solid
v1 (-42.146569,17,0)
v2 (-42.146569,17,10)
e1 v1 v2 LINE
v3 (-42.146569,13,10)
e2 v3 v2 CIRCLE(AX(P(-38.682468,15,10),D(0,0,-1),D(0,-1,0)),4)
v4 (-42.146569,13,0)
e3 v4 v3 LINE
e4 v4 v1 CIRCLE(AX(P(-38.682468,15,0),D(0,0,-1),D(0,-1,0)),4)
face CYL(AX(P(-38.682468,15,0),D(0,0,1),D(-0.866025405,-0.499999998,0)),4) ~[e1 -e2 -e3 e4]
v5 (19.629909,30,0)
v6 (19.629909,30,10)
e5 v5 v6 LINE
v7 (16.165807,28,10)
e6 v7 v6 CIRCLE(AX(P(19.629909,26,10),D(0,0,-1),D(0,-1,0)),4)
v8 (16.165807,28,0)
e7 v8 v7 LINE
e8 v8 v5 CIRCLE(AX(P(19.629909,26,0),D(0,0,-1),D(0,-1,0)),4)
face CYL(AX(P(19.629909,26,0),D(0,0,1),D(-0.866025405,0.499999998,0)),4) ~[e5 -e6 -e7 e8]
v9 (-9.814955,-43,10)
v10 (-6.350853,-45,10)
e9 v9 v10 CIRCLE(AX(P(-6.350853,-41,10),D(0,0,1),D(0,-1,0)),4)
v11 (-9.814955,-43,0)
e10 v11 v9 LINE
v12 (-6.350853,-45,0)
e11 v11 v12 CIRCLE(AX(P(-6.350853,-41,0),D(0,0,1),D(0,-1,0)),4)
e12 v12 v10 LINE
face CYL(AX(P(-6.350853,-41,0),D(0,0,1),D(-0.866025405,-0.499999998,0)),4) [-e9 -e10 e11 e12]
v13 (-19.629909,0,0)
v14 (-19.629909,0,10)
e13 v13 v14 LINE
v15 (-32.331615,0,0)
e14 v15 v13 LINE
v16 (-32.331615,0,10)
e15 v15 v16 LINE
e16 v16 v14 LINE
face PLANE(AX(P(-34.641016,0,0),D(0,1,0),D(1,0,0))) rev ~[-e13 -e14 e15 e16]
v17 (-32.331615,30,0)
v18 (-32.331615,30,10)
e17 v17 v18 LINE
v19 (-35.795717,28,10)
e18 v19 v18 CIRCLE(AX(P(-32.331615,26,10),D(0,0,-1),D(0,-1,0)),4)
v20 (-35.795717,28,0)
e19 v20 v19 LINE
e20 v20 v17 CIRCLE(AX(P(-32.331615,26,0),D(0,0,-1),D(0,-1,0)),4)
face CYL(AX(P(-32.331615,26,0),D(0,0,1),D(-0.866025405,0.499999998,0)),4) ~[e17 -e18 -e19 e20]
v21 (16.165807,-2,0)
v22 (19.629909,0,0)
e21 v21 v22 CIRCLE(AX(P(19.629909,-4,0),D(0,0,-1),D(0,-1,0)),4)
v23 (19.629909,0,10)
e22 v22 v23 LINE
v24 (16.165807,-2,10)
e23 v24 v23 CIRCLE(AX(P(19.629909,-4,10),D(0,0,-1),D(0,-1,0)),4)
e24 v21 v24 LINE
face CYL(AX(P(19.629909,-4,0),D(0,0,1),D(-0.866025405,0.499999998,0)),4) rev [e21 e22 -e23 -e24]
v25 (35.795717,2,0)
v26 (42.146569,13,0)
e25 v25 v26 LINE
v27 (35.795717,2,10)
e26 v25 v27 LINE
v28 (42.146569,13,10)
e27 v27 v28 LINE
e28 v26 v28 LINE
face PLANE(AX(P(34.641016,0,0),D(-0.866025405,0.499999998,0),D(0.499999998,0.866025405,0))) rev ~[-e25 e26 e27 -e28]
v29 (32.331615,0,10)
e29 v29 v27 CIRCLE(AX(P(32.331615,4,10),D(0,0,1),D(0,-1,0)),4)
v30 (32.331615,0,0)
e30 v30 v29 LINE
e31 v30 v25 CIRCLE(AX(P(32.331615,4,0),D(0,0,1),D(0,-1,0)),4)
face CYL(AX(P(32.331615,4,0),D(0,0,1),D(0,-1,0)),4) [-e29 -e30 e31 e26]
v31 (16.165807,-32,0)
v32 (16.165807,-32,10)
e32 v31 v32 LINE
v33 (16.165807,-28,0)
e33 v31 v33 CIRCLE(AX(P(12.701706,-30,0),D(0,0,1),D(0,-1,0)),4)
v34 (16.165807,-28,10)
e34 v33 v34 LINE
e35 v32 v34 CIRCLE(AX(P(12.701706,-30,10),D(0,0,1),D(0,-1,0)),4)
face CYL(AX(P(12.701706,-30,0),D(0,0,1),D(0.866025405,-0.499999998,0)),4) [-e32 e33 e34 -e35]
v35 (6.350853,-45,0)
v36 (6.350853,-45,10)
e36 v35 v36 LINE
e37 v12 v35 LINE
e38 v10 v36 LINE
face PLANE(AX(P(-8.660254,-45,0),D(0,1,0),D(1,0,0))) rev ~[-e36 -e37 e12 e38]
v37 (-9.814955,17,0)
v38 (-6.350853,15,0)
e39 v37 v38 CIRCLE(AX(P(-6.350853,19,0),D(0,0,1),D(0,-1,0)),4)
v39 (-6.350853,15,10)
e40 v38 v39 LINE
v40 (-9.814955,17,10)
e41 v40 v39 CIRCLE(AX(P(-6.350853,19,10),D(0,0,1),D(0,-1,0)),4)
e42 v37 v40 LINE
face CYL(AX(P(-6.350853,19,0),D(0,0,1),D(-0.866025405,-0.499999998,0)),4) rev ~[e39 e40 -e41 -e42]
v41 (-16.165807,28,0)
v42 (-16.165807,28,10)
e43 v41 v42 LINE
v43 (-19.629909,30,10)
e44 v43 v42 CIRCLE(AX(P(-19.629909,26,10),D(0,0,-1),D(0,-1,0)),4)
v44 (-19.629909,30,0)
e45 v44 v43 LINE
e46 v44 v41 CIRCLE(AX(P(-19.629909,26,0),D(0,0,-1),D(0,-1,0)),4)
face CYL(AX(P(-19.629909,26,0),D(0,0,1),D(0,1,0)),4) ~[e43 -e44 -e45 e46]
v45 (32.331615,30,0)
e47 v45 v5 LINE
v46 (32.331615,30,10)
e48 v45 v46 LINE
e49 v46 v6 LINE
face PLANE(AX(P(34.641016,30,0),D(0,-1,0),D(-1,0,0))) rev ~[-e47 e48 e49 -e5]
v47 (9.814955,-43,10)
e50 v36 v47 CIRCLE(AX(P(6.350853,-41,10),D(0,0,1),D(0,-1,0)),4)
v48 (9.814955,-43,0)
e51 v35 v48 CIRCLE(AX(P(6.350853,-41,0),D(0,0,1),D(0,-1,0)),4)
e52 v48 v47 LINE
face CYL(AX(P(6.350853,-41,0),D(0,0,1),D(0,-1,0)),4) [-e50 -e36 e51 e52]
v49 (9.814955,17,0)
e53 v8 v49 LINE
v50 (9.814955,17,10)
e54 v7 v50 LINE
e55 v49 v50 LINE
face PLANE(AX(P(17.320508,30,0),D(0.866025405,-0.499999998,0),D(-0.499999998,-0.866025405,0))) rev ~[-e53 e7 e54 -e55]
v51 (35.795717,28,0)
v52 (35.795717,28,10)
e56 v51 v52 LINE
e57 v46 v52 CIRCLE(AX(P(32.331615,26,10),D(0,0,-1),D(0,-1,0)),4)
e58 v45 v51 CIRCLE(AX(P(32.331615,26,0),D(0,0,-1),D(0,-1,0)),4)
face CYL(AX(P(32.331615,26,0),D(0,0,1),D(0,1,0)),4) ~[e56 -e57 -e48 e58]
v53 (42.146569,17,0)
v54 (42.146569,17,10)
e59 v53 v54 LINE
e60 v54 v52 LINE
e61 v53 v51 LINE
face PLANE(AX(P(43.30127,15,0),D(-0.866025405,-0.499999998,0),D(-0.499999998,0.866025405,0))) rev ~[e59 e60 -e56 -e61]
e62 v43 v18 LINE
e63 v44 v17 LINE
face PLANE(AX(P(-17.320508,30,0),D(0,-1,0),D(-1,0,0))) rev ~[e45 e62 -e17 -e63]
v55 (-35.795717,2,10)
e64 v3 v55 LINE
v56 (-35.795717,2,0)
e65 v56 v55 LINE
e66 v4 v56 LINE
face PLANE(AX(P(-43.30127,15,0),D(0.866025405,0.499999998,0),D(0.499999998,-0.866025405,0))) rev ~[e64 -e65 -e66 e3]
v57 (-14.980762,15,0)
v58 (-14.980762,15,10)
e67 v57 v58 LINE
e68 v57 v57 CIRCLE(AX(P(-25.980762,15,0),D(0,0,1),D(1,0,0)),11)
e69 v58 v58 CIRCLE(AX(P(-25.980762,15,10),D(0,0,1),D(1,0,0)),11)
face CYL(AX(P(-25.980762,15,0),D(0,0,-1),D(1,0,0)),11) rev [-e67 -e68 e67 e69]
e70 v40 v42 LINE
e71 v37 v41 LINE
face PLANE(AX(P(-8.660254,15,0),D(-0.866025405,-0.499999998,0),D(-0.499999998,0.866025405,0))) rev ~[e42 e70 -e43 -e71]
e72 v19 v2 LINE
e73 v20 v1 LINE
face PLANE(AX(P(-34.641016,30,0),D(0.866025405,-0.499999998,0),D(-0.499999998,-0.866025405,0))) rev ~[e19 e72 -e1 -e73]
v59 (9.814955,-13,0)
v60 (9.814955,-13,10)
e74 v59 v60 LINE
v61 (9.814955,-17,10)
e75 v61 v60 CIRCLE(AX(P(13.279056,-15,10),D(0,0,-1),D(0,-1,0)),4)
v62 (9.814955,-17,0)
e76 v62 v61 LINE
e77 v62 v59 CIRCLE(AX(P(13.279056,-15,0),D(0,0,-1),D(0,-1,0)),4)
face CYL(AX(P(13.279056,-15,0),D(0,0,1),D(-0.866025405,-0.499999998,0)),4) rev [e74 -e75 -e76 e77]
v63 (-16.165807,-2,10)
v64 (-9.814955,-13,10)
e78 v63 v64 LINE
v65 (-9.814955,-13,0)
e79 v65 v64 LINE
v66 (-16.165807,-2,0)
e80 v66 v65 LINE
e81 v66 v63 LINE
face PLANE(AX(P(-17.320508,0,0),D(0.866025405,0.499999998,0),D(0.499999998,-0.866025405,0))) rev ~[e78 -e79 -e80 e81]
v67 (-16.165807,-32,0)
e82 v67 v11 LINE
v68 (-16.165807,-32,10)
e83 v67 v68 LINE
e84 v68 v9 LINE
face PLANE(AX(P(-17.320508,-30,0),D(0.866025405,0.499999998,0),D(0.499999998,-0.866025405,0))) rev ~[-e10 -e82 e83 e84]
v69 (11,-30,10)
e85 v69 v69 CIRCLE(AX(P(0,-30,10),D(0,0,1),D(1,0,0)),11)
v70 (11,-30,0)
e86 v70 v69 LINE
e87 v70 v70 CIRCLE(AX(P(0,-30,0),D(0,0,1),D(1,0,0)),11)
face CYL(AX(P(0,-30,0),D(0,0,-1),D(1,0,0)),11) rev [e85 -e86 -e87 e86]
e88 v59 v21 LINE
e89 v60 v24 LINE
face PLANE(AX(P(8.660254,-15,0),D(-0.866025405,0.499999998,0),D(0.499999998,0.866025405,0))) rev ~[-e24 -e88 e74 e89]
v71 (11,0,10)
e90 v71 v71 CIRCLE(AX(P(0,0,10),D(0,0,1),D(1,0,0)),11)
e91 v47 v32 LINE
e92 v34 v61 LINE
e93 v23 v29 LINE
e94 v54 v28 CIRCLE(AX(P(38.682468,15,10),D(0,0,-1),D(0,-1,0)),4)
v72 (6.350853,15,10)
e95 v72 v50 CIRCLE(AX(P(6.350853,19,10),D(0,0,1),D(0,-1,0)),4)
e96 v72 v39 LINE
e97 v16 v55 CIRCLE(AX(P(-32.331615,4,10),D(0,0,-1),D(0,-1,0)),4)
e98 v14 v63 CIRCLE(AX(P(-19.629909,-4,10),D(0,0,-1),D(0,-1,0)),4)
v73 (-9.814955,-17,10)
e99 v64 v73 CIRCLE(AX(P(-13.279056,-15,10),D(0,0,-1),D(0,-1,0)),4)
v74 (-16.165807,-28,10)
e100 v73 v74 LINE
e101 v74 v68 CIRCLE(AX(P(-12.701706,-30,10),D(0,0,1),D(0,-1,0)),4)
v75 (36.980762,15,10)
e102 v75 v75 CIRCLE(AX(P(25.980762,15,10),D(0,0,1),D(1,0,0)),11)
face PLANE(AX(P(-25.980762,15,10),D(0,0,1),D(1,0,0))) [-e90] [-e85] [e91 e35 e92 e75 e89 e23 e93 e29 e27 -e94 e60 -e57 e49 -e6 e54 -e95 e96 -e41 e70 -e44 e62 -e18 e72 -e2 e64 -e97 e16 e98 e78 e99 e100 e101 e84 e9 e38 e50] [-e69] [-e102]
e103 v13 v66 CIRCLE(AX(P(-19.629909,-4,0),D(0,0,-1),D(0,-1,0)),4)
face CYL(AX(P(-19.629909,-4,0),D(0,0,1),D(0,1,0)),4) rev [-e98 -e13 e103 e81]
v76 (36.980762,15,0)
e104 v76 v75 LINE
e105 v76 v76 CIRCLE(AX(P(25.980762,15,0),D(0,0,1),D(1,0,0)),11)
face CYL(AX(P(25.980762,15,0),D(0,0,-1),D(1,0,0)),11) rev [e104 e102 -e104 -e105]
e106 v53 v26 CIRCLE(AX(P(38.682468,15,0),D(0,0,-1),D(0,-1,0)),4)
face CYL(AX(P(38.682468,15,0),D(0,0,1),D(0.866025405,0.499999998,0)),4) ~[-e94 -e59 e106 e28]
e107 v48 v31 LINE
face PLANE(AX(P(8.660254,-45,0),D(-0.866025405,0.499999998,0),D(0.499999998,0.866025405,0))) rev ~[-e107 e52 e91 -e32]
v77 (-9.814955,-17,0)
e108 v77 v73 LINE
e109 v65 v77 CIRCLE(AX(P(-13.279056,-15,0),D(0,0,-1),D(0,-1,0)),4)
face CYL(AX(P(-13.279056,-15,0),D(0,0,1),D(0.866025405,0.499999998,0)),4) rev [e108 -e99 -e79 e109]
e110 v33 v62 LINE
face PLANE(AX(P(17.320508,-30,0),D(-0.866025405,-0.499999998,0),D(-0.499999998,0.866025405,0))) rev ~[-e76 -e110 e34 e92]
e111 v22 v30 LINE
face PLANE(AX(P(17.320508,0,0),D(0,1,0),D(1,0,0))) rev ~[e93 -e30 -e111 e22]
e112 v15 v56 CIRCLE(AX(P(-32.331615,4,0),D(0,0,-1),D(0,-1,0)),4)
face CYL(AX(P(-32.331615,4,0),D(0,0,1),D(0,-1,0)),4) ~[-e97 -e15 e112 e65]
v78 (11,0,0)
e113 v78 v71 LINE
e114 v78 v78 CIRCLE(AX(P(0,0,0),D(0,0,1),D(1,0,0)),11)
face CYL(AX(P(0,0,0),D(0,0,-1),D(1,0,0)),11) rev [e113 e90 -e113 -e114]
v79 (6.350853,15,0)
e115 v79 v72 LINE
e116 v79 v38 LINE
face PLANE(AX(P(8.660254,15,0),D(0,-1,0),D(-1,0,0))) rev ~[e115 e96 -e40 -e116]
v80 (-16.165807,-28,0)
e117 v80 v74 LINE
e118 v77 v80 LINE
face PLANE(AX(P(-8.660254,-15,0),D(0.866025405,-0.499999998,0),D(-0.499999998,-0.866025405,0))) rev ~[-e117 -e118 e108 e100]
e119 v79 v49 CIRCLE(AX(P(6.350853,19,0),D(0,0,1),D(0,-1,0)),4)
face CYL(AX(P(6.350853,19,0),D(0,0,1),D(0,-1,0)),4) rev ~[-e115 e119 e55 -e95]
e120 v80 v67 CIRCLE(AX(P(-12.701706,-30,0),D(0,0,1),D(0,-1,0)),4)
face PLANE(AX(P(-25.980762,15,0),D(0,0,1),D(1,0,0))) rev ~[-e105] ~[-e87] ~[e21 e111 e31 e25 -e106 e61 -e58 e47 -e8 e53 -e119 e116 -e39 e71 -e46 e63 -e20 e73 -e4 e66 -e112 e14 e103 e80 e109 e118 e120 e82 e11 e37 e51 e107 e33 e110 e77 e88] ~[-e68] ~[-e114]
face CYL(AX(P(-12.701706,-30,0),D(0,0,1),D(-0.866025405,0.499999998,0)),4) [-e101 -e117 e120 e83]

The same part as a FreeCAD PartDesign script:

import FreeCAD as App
import Part
import Sketcher
Q = App.Units.Quantity


def edges_at(feature, points):
    """Names of the edges that pass closest to the given points."""
    edges = feature.Shape.Edges
    near = lambda p: min(range(len(edges)), key=lambda i: edges[i].distToShape(Part.Vertex(*p))[0])
    return sorted({f"Edge{near(p) + 1}" for p in points})

doc = App.newDocument("Part")
body = doc.addObject("PartDesign::Body", "Body")

# Sketch on XY plane
sketch1 = body.newObject("Sketcher::SketchObject", "Sketch")
sketch1.AttachmentSupport = (doc.getObject("XY_Plane"), [""])
sketch1.MapMode = "FlatFace"
sketch1.addGeometry(Part.LineSegment(App.Vector(-35, 0, 0), App.Vector(-17, 0, 0)), False)
sketch1.addGeometry(Part.LineSegment(App.Vector(-17, 0, 0), App.Vector(-9, -15, 0)), False)
sketch1.addGeometry(Part.LineSegment(App.Vector(-9, -15, 0), App.Vector(-17, -30, 0)), False)
sketch1.addGeometry(Part.LineSegment(App.Vector(-17, -30, 0), App.Vector(-9, -45, 0)), False)
sketch1.addGeometry(Part.LineSegment(App.Vector(-9, -45, 0), App.Vector(9, -45, 0)), False)
sketch1.addGeometry(Part.LineSegment(App.Vector(9, -45, 0), App.Vector(17, -30, 0)), False)
sketch1.addGeometry(Part.LineSegment(App.Vector(17, -30, 0), App.Vector(9, -15, 0)), False)
sketch1.addGeometry(Part.LineSegment(App.Vector(9, -15, 0), App.Vector(17, 0, 0)), False)
sketch1.addGeometry(Part.LineSegment(App.Vector(17, 0, 0), App.Vector(35, 0, 0)), False)
sketch1.addGeometry(Part.LineSegment(App.Vector(35, 0, 0), App.Vector(43, 15, 0)), False)
sketch1.addGeometry(Part.LineSegment(App.Vector(43, 15, 0), App.Vector(35, 30, 0)), False)
sketch1.addGeometry(Part.LineSegment(App.Vector(35, 30, 0), App.Vector(17, 30, 0)), False)
sketch1.addGeometry(Part.LineSegment(App.Vector(17, 30, 0), App.Vector(9, 15, 0)), False)
sketch1.addGeometry(Part.LineSegment(App.Vector(9, 15, 0), App.Vector(-9, 15, 0)), False)
sketch1.addGeometry(Part.LineSegment(App.Vector(-9, 15, 0), App.Vector(-17, 30, 0)), False)
sketch1.addGeometry(Part.LineSegment(App.Vector(-17, 30, 0), App.Vector(-35, 30, 0)), False)
sketch1.addGeometry(Part.LineSegment(App.Vector(-35, 30, 0), App.Vector(-43, 15, 0)), False)
sketch1.addGeometry(Part.LineSegment(App.Vector(-43, 15, 0), App.Vector(-35, 0, 0)), False)
sketch1.addGeometry(Part.Circle(App.Vector(0, -30, 0), App.Vector(0, 0, 1), 11), False)
sketch1.addGeometry(Part.Circle(App.Vector(-26, 15, 0), App.Vector(0, 0, 1), 11), False)
sketch1.addGeometry(Part.Circle(App.Vector(0, 0, 0), App.Vector(0, 0, 1), 11), False)
sketch1.addGeometry(Part.Circle(App.Vector(26, 15, 0), App.Vector(0, 0, 1), 11), False)
sketch1.addConstraint(Sketcher.Constraint("Coincident", 0, 2, 1, 1))
sketch1.addConstraint(Sketcher.Constraint("Coincident", 1, 2, 2, 1))
sketch1.addConstraint(Sketcher.Constraint("Coincident", 2, 2, 3, 1))
sketch1.addConstraint(Sketcher.Constraint("Coincident", 3, 2, 4, 1))
sketch1.addConstraint(Sketcher.Constraint("Coincident", 4, 2, 5, 1))
sketch1.addConstraint(Sketcher.Constraint("Coincident", 5, 2, 6, 1))
sketch1.addConstraint(Sketcher.Constraint("Coincident", 6, 2, 7, 1))
sketch1.addConstraint(Sketcher.Constraint("Coincident", 7, 2, 8, 1))
sketch1.addConstraint(Sketcher.Constraint("Coincident", 8, 2, 9, 1))
sketch1.addConstraint(Sketcher.Constraint("Coincident", 9, 2, 10, 1))
sketch1.addConstraint(Sketcher.Constraint("Coincident", 10, 2, 11, 1))
sketch1.addConstraint(Sketcher.Constraint("Coincident", 11, 2, 12, 1))
sketch1.addConstraint(Sketcher.Constraint("Coincident", 12, 2, 13, 1))
sketch1.addConstraint(Sketcher.Constraint("Coincident", 13, 2, 14, 1))
sketch1.addConstraint(Sketcher.Constraint("Coincident", 14, 2, 15, 1))
sketch1.addConstraint(Sketcher.Constraint("Coincident", 15, 2, 16, 1))
sketch1.addConstraint(Sketcher.Constraint("Coincident", 16, 2, 17, 1))
sketch1.addConstraint(Sketcher.Constraint("Coincident", 17, 2, 0, 1))
sketch1.addConstraint(Sketcher.Constraint("Horizontal", 0))
sketch1.addConstraint(Sketcher.Constraint("Horizontal", 4))
sketch1.addConstraint(Sketcher.Constraint("Horizontal", 8))
sketch1.addConstraint(Sketcher.Constraint("Horizontal", 11))
sketch1.addConstraint(Sketcher.Constraint("Horizontal", 13))
sketch1.addConstraint(Sketcher.Constraint("Horizontal", 15))
sketch1.addConstraint(Sketcher.Constraint("Coincident", 20, 3, -1, 1))
sketch1.addConstraint(Sketcher.Constraint("Equal", 18, 19))
sketch1.addConstraint(Sketcher.Constraint("Equal", 19, 20))
sketch1.addConstraint(Sketcher.Constraint("Equal", 20, 21))
sketch1.addConstraint(Sketcher.Constraint("Symmetric", 0, 2, 7, 2, -1, 1))
sketch1.addConstraint(Sketcher.Constraint("Symmetric", 2, 2, 11, 2, -1, 1))
sketch1.addConstraint(Sketcher.Constraint("Symmetric", 1, 2, 12, 2, -1, 1))
sketch1.addConstraint(Sketcher.Constraint("Symmetric", 6, 2, 13, 2, -1, 1))
sketch1.addConstraint(Sketcher.Constraint("Symmetric", 5, 2, 14, 2, -1, 1))
sketch1.addConstraint(Sketcher.Constraint("Symmetric", 19, 3, 21, 3, -2))
sketch1.addConstraint(Sketcher.Constraint("Symmetric", 2, 2, 5, 2, -2))
sketch1.addConstraint(Sketcher.Constraint("Symmetric", 9, 2, 16, 2, -2))
sketch1.addConstraint(Sketcher.Constraint("Symmetric", 8, 2, 17, 2, -2))
sketch1.addConstraint(Sketcher.Constraint("PointOnObject", 18, 3, -2))
sketch1.addConstraint(Sketcher.Constraint("Parallel", 1, 3))
sketch1.addConstraint(Sketcher.Constraint("Parallel", 2, 5))
sketch1.addConstraint(Sketcher.Constraint("Parallel", 3, 6))
sketch1.addConstraint(Sketcher.Constraint("Parallel", 5, 7))
sketch1.addConstraint(Sketcher.Constraint("Parallel", 7, 9))
sketch1.addConstraint(Sketcher.Constraint("Parallel", 6, 10))
sketch1.addConstraint(Sketcher.Constraint("Parallel", 12, 16))
sketch1.addConstraint(Sketcher.Constraint("Horizontal", 18, 3, 2, 2))
sketch1.addConstraint(Sketcher.Constraint("Horizontal", 21, 3, 9, 2))
sketch1.addConstraint(Sketcher.Constraint("Horizontal", 9, 2, 12, 2))
sketch1.addConstraint(Sketcher.Constraint("Vertical", 0, 2, 2, 2))
sketch1.addConstraint(Sketcher.Constraint("Vertical", 1, 2, 3, 2))
sketch1.addConstraint(Sketcher.Constraint("Equal", 0, 4))
sketch1.addConstraint(Sketcher.Constraint("Diameter", 18, Q("22 mm")))
sketch1.addConstraint(Sketcher.Constraint("Angle", 1, Q("-60 deg")))
sketch1.addConstraint(Sketcher.Constraint("DistanceY", 18, 3, -1, 1, Q("30 mm")))
sketch1.addConstraint(Sketcher.Constraint("DistanceX", 0, 1, 0, 2, Q("17.320508 mm")))
sketch1.addConstraint(Sketcher.Constraint("DistanceX", 19, 3, -1, 1, Q("25.980762 mm")))
pad1 = body.newObject("PartDesign::Pad", "Pad")
pad1.Profile = sketch1
pad1.Length = 10
doc.recompute()

fillet = body.newObject("PartDesign::Fillet", "Fillet")
fillet.Base = (pad1, edges_at(pad1, [
    (8.66, -45, 5),
    (17.321, -30, 5),
    (8.66, -15, 5),
    (34.641, 0, 5),
    (17.321, 0, 5),
    (43.301, 15, 5),
    (34.641, 30, 5),
    (17.321, 30, 5),
    (8.66, 15, 5),
    (-8.66, 15, 5),
    (-17.321, 30, 5),
    (-34.641, 30, 5),
    (-43.301, 15, 5),
    (-34.641, 0, 5),
    (-17.321, 0, 5),
    (-8.66, -15, 5),
    (-17.321, -30, 5),
    (-8.66, -45, 5),
]))
fillet.Radius = 4

doc.recompute()
